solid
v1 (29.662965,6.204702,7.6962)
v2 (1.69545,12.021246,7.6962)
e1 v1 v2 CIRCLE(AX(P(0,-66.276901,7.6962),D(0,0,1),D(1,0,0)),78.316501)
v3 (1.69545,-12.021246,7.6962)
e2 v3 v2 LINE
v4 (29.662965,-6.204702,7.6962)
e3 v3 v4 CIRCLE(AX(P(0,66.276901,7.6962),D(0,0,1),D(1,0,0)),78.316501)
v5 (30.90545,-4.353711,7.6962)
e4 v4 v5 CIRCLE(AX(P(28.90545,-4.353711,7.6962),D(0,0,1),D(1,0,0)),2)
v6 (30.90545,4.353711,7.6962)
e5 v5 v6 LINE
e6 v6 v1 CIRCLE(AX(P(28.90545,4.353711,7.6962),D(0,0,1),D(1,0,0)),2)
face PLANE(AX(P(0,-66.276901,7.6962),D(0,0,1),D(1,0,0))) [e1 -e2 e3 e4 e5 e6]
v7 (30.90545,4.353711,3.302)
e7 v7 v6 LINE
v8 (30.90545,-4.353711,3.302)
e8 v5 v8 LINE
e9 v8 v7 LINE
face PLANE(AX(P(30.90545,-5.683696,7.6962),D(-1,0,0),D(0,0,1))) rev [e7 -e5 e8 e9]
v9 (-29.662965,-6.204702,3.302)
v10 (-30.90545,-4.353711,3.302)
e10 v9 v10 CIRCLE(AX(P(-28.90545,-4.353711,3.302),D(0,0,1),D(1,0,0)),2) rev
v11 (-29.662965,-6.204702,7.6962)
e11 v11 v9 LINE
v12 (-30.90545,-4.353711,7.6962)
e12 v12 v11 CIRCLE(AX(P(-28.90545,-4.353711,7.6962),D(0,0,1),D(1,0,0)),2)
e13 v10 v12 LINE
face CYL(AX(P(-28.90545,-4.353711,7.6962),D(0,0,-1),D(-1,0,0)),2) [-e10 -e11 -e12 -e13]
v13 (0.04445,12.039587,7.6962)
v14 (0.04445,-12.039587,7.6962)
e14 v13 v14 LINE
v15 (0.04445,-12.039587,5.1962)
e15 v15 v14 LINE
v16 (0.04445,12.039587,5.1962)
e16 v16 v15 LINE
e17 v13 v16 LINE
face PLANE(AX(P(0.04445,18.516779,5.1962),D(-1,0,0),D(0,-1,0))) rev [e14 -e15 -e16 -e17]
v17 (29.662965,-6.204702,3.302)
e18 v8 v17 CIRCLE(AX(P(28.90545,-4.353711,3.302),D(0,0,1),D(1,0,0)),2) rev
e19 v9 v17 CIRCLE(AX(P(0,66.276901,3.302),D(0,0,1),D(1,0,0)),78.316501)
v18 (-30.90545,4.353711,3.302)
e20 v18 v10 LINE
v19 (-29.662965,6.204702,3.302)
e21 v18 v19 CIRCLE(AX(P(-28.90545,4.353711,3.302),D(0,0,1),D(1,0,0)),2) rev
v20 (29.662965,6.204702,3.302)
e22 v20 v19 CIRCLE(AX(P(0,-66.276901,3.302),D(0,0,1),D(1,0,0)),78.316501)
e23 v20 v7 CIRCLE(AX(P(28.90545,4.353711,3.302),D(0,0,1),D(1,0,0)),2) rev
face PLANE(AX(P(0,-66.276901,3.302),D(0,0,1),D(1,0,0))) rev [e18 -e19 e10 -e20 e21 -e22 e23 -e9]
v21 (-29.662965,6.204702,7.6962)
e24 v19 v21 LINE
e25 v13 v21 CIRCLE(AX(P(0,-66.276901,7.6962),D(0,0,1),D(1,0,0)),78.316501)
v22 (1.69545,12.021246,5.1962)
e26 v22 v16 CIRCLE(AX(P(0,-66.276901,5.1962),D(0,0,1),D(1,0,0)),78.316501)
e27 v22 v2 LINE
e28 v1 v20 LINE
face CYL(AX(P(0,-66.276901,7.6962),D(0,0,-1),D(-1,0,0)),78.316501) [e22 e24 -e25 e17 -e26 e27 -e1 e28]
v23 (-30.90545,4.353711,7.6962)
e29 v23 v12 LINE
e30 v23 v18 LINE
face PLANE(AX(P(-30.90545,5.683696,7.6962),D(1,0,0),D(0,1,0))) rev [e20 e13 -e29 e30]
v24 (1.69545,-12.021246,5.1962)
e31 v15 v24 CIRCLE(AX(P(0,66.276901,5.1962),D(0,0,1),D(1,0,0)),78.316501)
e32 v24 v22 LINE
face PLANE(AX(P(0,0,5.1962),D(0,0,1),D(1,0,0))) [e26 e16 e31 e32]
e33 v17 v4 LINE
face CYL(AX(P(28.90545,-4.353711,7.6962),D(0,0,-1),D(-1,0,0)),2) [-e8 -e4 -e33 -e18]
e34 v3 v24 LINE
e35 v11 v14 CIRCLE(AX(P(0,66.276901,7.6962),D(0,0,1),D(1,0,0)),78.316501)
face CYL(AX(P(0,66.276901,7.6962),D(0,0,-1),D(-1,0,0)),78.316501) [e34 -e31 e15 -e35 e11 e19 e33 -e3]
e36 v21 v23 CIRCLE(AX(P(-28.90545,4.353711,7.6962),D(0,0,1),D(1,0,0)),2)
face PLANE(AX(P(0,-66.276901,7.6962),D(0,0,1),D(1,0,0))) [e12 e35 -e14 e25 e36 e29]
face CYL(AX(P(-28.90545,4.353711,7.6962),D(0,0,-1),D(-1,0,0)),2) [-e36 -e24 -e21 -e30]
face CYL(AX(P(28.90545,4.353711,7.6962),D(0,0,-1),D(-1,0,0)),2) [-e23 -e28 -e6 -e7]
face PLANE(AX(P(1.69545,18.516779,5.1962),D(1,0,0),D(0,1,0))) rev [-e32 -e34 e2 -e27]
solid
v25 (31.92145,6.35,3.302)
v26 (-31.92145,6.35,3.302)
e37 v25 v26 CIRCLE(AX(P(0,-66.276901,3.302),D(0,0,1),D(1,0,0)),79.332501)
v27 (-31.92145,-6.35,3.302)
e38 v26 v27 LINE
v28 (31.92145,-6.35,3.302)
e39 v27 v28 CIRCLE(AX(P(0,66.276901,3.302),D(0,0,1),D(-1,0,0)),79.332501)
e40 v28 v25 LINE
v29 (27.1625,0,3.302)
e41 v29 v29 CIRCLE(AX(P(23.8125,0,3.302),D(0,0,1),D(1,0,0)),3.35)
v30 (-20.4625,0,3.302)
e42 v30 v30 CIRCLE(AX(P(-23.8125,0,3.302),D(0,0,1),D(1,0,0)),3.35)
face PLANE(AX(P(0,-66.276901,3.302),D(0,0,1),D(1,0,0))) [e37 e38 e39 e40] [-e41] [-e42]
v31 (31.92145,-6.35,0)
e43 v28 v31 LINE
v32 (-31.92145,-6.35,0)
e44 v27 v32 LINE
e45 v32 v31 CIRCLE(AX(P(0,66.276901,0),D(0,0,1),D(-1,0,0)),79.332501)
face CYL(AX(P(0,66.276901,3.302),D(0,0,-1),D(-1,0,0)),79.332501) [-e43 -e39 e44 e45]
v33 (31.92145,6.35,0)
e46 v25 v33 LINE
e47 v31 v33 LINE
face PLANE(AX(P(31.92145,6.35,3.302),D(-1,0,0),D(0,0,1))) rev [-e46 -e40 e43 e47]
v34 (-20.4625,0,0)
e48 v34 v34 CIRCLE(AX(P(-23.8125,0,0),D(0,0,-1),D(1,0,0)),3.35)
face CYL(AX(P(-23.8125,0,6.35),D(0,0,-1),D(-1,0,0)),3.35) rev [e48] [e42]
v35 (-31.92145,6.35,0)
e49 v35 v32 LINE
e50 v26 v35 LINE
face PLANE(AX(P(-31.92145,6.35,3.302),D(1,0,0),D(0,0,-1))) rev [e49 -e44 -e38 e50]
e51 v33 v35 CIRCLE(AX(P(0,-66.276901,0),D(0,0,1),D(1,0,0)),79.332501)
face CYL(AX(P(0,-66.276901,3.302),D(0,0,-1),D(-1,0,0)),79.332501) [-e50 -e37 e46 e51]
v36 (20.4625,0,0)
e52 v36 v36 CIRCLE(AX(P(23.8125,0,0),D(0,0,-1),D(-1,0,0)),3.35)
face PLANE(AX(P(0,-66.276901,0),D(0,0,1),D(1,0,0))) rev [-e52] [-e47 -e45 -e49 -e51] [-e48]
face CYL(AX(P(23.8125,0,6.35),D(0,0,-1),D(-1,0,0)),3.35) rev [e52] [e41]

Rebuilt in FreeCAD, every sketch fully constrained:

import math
import FreeCAD as App
import Part
import Sketcher
from FreeCAD import Vector
Q = App.Units.Quantity


def edges_at(feature, points):
    """Names of the edges that pass closest to the given points."""
    edges = feature.Shape.Edges
    near = lambda p: min(range(len(edges)), key=lambda i: edges[i].distToShape(Part.Vertex(*p))[0])
    return sorted({f"Edge{near(p) + 1}" for p in points})


def add_polygon(sketch, points):
    """Adds a closed chain of lines whose ends are joined by coincident constraints."""
    first, n = sketch.GeometryCount, len(points)
    for a, b in zip(points, points[1:] + points[:1]):
        sketch.addGeometry(Part.LineSegment(App.Vector(*a, 0), App.Vector(*b, 0)), False)
    for i in range(n):
        sketch.addConstraint(Sketcher.Constraint("Coincident", first + i, 2, first + (i + 1) % n, 1))

doc = App.newDocument("Part")
body = doc.addObject("PartDesign::Body", "Body")

# Sketch on XY plane
sketch1 = body.newObject("Sketcher::SketchObject", "Sketch")
sketch1.AttachmentSupport = (doc.getObject("XY_Plane"), [""])
sketch1.MapMode = "FlatFace"
sketch1.addGeometry([
    Part.LineSegment(Vector(-31.92145, 6.35, 0), Vector(-31.92145, -6.35, 0)),
    Part.ArcOfCircle(Part.Circle(Vector(0, 66.276901, 0), Vector(0, 0, 1), 79.332501), math.radians(-113.726763), math.radians(-66.273237)),
    Part.LineSegment(Vector(31.92145, -6.35, 0), Vector(31.92145, 6.35, 0)),
    Part.ArcOfCircle(Part.Circle(Vector(0, -66.276901, 0), Vector(0, 0, 1), 79.332501), math.radians(66.273237), math.radians(113.726763)),
], False)
sketch1.addConstraint([
    Sketcher.Constraint("Coincident", 0, 2, 1, 1),
    Sketcher.Constraint("Coincident", 1, 2, 2, 1),
    Sketcher.Constraint("Coincident", 2, 2, 3, 1),
    Sketcher.Constraint("Coincident", 3, 2, 0, 1),
    Sketcher.Constraint("Vertical", 0),
    Sketcher.Constraint("Vertical", 2),
    Sketcher.Constraint("Equal", 1, 3),
    Sketcher.Constraint("Symmetric", 1, 3, 3, 3, -1, 1),
    Sketcher.Constraint("Symmetric", 0, 2, 1, 2, -2),
    Sketcher.Constraint("DistanceY", 0, 2, 0, 1, Q("0.5 in")),
    Sketcher.Constraint("Radius", 1, Q("79.332501 mm")),
    Sketcher.Constraint("DistanceX", 0, 2, 1, 2, Q("2.5135 in")),
])
pad1 = body.newObject("PartDesign::Pad", "Pad")
pad1.Profile = sketch1
pad1.Length = Q("0.13 in")

# Sketch on XY plane
sketch2 = body.newObject("Sketcher::SketchObject", "Sketch001")
sketch2.AttachmentSupport = (doc.getObject("XY_Plane"), [""])
sketch2.MapMode = "FlatFace"
sketch2.addGeometry([
    Part.Circle(Vector(23.8125, 0, 0), Vector(0, 0, 1), 3.35),
    Part.Circle(Vector(-23.8125, 0, 0), Vector(0, 0, 1), 3.35),
], False)
sketch2.addConstraint([
    Sketcher.Constraint("Equal", 0, 1),
    Sketcher.Constraint("Symmetric", 0, 3, 1, 3, -1, 1),
    Sketcher.Constraint("PointOnObject", 0, 3, -1),
    Sketcher.Constraint("Diameter", 0, Q("6.7 mm")),
    Sketcher.Constraint("DistanceX", -1, 1, 0, 3, Q("0.9375 in")),
])
pocket1 = body.newObject("PartDesign::Pocket", "Pocket")
pocket1.Profile = sketch2
pocket1.Length = Q("0.25 in")
pocket1.Reversed = True
body2 = doc.addObject("PartDesign::Body", "Body001")

# Sketch on XY plane
sketch3 = body2.newObject("Sketcher::SketchObject", "Sketch002")
sketch3.AttachmentSupport = (doc.getObject("XY_Plane001"), [""])
sketch3.MapMode = "FlatFace"
sketch3.AttachmentOffset = App.Placement(Vector(0, 0, 0.13 * 25.4), App.Rotation())
sketch3.addGeometry([
    Part.LineSegment(Vector(-30.90545, 5.683696, 0), Vector(-30.90545, -5.683696, 0)),
    Part.ArcOfCircle(Part.Circle(Vector(0, 66.276901, 0), Vector(0, 0, 1), 78.316501), math.radians(-113.24243), math.radians(-66.75757)),
    Part.LineSegment(Vector(30.90545, -5.683696, 0), Vector(30.90545, 5.683696, 0)),
    Part.ArcOfCircle(Part.Circle(Vector(0, -66.276901, 0), Vector(0, 0, 1), 78.316501), math.radians(66.75757), math.radians(113.24243)),
], False)
sketch3.addConstraint([
    Sketcher.Constraint("Coincident", 0, 2, 1, 1),
    Sketcher.Constraint("Coincident", 1, 2, 2, 1),
    Sketcher.Constraint("Coincident", 2, 2, 3, 1),
    Sketcher.Constraint("Coincident", 3, 2, 0, 1),
    Sketcher.Constraint("Vertical", 0),
    Sketcher.Constraint("Vertical", 2),
    Sketcher.Constraint("Equal", 1, 3),
    Sketcher.Constraint("Symmetric", 1, 3, 3, 3, -1, 1),
    Sketcher.Constraint("Symmetric", 0, 2, 1, 2, -2),
    Sketcher.Constraint("Radius", 1, Q("78.316501 mm")),
    Sketcher.Constraint("DistanceX", 0, 2, 1, 2, Q("2.4335 in")),
    Sketcher.Constraint("DistanceY", 0, 2, 0, 1, Q("11.367392 mm")),
])
pad2 = body2.newObject("PartDesign::Pad", "Pad001")
pad2.Profile = sketch3
pad2.Length = Q("0.173 in")

# Sketch on XY plane
sketch4 = body2.newObject("Sketcher::SketchObject", "Sketch003")
sketch4.AttachmentSupport = (doc.getObject("XY_Plane001"), [""])
sketch4.MapMode = "FlatFace"
sketch4.AttachmentOffset = App.Placement(Vector(0, 0, 0.303 * 25.4), App.Rotation())
add_polygon(sketch4, [(0.04445, 18.516779), (0.04445, -19.10879), (1.69545, -19.10879), (1.69545, 18.516779)])  # lines 0-3
sketch4.addConstraint([
    Sketcher.Constraint("Vertical", 0),
    Sketcher.Constraint("Horizontal", 1),
    Sketcher.Constraint("Vertical", 2),
    Sketcher.Constraint("Horizontal", 3),
    Sketcher.Constraint("DistanceX", 1, 1, 1, 2, Q("0.065 in")),
    Sketcher.Constraint("DistanceY", 0, 2, 0, 1, Q("37.62557 mm")),
    Sketcher.Constraint("DistanceX", -1, 1, 0, 2, Q("0.04445 mm")),
    Sketcher.Constraint("DistanceY", 0, 2, -1, 1, Q("19.10879 mm")),
])
pocket2 = body2.newObject("PartDesign::Pocket", "Pocket001")
pocket2.Profile = sketch4
pocket2.Length = 2.5
doc.recompute()

fillet = body2.newObject("PartDesign::Fillet", "Fillet")
fillet.Base = (pocket2, edges_at(pocket2, [
    (30.905, 5.684, 5.499),
    (30.905, -5.684, 5.499),
    (-30.905, -5.684, 5.499),
    (-30.905, 5.684, 5.499),
]))
fillet.Radius = 2

doc.recompute()
